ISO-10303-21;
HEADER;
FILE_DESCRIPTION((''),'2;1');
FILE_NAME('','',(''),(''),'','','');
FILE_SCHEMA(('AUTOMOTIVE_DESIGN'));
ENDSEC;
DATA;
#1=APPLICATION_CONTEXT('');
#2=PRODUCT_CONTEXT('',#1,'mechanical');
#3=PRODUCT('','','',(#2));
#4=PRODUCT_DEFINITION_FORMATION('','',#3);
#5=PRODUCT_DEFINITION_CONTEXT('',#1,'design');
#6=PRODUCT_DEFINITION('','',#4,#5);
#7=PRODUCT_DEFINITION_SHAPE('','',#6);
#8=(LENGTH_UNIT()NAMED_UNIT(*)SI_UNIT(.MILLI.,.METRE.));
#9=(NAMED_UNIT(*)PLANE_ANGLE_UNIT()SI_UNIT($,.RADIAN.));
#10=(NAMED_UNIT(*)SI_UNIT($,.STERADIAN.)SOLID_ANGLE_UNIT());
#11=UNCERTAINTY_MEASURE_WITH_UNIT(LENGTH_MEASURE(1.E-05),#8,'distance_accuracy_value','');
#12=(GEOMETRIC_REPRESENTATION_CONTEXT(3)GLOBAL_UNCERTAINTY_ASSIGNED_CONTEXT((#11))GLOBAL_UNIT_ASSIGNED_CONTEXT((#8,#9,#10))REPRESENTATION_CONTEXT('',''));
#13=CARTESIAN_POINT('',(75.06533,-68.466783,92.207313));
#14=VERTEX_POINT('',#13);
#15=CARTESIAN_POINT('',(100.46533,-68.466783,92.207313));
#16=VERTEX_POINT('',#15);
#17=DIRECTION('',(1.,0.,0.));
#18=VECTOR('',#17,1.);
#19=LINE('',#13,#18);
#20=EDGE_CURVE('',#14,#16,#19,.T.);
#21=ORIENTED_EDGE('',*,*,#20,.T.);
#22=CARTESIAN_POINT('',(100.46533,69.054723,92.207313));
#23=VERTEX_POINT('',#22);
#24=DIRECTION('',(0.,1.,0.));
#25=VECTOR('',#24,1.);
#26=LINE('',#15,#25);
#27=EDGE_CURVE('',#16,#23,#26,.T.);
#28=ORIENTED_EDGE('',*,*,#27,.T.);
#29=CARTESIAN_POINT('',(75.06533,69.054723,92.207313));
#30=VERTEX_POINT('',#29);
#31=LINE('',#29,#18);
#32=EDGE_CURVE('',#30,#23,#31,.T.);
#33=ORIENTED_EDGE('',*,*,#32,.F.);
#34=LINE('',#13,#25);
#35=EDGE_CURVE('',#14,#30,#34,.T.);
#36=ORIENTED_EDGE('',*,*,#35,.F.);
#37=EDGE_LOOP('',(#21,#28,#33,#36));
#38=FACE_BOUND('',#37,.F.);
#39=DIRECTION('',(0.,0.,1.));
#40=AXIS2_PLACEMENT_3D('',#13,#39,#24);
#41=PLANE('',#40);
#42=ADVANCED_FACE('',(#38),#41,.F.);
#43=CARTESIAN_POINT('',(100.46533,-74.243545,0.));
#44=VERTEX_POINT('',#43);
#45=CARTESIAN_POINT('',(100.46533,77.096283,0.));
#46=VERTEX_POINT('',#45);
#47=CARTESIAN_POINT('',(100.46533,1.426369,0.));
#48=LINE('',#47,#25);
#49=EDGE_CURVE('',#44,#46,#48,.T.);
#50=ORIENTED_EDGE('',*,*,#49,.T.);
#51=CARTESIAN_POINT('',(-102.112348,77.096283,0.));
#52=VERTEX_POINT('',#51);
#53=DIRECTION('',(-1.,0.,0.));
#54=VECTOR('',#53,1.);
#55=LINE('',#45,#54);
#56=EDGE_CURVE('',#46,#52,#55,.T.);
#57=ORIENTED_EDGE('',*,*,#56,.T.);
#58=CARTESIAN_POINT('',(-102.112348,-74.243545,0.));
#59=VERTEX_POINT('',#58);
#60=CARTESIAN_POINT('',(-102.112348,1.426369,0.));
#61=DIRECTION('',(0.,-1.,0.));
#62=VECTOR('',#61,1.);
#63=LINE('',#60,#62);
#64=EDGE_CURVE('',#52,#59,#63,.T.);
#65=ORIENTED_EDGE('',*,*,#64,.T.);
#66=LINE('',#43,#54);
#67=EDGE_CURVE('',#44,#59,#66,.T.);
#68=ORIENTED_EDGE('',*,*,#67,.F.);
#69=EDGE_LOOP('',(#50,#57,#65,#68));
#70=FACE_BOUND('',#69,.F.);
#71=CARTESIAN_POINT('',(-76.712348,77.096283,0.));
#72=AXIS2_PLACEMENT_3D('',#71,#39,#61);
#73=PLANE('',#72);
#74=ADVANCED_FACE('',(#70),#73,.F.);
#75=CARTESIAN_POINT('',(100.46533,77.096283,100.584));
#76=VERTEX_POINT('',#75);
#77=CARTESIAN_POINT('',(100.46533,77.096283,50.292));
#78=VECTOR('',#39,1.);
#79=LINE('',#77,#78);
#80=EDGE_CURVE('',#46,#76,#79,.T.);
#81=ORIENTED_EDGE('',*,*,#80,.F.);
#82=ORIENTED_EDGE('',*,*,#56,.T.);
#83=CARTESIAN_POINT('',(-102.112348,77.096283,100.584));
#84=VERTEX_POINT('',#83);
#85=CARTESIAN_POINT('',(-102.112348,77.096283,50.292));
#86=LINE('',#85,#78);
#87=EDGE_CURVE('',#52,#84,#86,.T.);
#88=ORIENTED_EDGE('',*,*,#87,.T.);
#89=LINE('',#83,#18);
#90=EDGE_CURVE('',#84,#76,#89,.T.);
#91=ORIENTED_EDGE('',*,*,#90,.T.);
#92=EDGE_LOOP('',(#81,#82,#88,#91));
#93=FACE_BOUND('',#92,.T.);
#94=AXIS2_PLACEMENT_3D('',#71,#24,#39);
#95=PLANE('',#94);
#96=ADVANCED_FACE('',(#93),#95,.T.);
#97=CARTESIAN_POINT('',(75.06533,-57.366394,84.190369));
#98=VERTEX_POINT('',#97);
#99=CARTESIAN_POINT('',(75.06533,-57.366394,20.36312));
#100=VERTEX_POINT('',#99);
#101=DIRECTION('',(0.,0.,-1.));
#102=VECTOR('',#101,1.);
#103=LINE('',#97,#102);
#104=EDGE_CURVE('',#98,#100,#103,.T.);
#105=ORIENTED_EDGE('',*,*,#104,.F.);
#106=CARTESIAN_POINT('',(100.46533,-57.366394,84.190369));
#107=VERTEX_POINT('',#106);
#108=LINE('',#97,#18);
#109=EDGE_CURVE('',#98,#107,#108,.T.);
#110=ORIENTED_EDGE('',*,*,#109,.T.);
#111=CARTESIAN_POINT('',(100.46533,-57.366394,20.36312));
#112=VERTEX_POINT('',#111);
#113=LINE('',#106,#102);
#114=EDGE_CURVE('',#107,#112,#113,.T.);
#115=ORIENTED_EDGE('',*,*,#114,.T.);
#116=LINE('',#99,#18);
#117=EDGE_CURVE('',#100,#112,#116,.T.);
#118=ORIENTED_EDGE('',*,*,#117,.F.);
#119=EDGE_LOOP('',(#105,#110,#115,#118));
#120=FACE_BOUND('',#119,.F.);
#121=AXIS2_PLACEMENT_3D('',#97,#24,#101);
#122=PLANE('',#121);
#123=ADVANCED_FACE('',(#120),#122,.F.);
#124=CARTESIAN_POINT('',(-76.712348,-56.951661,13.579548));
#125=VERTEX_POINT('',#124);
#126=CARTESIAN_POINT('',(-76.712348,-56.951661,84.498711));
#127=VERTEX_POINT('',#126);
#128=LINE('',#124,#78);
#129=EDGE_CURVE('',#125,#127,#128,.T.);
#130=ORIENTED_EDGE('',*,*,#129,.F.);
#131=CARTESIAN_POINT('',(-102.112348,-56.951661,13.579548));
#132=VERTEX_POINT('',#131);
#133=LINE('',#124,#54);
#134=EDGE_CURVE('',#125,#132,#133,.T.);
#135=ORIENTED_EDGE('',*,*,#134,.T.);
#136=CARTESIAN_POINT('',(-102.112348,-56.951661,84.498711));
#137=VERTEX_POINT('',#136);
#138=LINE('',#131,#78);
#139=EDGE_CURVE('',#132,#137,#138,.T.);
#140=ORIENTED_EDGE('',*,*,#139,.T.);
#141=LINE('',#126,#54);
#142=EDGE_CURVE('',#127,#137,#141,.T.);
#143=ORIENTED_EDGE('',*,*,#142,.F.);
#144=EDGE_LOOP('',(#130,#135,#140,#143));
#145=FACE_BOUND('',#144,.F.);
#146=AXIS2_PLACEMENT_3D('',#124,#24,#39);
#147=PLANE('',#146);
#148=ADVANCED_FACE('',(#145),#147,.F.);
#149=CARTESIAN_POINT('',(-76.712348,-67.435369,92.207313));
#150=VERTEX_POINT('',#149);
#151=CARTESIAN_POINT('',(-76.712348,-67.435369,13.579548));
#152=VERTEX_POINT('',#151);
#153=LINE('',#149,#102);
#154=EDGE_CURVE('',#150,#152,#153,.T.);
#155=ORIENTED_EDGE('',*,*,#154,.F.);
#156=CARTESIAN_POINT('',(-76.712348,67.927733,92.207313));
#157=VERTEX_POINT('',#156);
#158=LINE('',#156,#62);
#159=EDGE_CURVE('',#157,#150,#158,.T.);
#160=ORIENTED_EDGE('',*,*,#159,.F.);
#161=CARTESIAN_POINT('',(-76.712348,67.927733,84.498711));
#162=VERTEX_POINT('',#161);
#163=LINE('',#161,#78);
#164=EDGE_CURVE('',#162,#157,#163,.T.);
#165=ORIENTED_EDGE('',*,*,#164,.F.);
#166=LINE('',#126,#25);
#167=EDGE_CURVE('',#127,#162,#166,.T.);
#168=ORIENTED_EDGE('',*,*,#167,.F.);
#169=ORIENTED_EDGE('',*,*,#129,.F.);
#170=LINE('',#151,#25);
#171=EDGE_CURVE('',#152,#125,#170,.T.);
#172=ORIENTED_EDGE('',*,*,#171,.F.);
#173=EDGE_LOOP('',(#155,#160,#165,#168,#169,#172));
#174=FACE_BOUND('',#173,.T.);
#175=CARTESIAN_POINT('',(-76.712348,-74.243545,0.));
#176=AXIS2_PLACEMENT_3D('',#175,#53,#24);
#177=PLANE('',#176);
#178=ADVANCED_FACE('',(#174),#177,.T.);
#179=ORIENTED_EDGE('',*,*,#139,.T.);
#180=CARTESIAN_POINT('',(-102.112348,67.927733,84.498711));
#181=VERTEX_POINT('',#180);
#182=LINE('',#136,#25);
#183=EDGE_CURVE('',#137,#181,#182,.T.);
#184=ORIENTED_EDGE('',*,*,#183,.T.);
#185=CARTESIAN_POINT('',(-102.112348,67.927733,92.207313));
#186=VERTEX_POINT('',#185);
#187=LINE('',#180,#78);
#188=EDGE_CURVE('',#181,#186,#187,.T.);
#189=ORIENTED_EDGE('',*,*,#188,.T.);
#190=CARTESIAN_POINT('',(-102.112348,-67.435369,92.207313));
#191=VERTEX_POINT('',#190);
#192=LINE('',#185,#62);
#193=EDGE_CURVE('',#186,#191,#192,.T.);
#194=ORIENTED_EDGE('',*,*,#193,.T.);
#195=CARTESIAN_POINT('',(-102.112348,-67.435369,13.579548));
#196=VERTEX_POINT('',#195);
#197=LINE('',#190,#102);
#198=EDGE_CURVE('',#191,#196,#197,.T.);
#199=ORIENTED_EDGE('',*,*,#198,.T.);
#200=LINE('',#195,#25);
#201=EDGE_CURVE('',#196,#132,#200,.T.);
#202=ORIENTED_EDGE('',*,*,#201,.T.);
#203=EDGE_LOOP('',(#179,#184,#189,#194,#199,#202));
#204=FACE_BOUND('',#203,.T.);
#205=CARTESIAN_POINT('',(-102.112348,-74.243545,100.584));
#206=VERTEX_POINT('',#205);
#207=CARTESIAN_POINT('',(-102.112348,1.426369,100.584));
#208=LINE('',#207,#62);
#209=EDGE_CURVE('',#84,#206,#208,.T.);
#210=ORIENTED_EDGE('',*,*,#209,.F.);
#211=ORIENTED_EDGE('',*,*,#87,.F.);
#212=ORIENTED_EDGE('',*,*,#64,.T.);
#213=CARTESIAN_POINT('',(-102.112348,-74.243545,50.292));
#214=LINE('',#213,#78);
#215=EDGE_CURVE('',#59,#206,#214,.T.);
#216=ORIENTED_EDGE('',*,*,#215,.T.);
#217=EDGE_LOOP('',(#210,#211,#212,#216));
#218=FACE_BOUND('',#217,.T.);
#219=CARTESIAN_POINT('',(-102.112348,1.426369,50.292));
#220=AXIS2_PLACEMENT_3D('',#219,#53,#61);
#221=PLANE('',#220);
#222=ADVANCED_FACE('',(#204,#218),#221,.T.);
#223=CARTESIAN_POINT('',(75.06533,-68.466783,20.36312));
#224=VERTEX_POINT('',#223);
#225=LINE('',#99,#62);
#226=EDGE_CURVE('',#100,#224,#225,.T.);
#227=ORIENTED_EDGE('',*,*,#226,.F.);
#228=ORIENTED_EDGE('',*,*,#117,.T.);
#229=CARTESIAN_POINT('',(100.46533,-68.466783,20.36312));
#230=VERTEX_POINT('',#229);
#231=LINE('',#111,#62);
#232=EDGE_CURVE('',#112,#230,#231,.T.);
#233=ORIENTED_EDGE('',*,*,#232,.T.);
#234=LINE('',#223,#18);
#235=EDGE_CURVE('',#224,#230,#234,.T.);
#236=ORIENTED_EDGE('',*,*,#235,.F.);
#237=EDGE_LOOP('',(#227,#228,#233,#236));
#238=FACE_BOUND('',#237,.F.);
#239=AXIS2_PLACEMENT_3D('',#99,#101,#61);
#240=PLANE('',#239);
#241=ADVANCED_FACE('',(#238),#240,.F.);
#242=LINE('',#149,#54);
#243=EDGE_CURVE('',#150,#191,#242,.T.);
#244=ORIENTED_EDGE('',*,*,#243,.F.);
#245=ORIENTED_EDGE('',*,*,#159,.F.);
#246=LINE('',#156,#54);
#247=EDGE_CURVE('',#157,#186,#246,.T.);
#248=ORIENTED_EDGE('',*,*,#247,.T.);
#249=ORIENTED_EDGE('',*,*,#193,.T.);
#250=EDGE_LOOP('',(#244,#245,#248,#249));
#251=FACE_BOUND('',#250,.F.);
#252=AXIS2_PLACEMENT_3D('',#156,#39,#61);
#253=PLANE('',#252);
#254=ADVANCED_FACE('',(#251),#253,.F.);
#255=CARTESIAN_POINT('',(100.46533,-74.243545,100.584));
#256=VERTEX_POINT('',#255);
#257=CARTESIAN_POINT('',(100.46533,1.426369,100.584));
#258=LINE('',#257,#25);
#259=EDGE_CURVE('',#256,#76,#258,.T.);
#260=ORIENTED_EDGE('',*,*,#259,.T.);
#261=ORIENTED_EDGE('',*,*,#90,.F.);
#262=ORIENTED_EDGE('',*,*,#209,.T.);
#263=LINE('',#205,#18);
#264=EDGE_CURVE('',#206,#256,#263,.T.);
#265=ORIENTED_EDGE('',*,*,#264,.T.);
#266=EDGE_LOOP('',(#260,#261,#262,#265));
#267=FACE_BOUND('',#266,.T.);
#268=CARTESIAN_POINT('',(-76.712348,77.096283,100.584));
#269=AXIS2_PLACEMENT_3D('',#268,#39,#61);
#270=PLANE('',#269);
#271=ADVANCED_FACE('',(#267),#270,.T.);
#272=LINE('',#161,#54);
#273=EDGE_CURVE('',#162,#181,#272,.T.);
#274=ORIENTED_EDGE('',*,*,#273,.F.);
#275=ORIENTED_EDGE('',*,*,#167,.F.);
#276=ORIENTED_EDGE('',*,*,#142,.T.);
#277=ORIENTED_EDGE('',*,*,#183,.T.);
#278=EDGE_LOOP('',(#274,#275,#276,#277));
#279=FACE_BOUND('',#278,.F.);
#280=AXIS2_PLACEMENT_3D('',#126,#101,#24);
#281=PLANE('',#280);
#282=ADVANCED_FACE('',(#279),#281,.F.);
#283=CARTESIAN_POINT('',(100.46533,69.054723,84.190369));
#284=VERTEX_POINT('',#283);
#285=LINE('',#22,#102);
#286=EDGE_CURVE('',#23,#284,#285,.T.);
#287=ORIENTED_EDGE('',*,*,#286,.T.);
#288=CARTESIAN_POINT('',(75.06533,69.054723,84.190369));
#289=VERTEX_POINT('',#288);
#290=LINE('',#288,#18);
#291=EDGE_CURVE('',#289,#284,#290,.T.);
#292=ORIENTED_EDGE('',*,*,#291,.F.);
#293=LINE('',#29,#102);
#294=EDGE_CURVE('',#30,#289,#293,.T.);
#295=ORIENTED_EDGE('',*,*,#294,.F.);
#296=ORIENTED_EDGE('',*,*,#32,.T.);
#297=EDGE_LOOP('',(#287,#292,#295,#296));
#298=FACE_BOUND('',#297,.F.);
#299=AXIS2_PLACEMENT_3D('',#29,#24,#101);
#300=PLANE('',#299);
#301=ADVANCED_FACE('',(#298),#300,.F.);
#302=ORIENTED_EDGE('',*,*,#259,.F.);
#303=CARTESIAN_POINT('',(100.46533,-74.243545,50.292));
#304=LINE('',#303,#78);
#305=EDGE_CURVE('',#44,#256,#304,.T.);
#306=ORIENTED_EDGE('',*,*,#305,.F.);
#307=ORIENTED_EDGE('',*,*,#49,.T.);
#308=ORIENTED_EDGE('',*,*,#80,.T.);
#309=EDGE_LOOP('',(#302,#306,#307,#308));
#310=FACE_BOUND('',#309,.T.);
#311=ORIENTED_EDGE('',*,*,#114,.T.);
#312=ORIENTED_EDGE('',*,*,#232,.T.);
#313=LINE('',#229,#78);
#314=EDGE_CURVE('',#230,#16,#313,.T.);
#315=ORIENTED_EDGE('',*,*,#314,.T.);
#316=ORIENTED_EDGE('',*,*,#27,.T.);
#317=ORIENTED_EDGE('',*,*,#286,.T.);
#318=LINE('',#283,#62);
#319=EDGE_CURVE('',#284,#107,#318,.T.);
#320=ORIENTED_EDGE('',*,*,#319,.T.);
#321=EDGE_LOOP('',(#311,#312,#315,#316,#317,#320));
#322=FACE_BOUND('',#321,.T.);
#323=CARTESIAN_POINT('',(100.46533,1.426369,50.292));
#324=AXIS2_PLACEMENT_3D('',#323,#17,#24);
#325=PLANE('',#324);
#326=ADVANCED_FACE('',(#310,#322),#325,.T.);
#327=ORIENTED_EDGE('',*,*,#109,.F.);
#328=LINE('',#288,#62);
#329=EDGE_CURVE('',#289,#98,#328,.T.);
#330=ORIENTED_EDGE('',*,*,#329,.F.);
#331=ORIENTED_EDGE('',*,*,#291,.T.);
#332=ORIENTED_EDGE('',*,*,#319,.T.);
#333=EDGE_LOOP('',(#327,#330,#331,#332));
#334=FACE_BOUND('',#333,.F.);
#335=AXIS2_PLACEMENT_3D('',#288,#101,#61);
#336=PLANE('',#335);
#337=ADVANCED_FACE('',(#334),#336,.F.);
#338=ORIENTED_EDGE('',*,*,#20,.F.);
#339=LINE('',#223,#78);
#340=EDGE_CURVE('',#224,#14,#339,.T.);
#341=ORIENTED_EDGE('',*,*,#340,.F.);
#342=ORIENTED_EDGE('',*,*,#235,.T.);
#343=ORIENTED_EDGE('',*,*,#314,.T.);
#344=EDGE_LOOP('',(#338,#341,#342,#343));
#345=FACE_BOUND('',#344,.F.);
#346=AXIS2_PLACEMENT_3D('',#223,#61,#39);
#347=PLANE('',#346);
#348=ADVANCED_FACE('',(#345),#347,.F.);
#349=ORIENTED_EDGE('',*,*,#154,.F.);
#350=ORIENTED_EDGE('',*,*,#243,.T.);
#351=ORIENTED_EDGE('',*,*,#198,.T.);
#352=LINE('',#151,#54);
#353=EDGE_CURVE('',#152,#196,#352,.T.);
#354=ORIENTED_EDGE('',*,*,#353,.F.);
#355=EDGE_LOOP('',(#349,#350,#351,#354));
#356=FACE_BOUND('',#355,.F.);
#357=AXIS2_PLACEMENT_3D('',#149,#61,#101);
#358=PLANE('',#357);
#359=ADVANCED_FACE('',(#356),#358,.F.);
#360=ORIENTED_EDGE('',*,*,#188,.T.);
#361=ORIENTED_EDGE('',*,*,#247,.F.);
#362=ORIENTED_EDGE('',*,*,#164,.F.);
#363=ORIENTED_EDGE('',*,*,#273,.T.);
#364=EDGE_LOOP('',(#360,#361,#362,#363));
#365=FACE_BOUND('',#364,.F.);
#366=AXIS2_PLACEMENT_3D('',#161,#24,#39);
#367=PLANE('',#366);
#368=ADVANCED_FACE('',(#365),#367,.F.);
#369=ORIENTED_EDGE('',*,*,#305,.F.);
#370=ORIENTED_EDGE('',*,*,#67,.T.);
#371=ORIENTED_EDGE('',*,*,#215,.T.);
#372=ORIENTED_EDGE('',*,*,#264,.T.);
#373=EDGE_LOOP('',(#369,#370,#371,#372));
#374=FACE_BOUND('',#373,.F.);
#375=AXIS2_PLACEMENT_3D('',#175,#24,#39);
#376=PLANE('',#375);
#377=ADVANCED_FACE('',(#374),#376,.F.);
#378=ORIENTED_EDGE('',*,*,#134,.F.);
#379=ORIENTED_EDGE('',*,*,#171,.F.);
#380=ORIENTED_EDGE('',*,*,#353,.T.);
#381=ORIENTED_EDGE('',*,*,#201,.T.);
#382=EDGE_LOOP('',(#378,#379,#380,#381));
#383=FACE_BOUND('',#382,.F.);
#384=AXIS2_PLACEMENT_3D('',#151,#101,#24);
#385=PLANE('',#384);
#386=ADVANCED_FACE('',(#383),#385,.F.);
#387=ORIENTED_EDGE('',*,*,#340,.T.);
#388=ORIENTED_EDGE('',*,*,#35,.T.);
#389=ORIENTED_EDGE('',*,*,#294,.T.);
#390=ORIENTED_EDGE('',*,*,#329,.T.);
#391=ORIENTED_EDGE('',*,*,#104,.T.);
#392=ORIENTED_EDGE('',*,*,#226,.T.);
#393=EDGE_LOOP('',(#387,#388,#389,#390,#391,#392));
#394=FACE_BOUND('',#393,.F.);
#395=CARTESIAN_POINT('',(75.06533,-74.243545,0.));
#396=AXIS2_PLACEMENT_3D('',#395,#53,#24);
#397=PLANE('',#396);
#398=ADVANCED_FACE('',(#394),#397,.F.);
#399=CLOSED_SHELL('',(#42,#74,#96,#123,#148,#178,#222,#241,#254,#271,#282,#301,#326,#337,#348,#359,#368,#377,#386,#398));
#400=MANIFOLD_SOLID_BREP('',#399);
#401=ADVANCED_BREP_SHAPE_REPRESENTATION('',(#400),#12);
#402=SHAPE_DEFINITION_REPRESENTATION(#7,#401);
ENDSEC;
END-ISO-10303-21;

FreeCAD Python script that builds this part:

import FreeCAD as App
import Part
import Sketcher
from FreeCAD import Vector
Q = App.Units.Quantity

doc = App.newDocument("Part")
params = doc.addObject("Spreadsheet::Sheet", "Params")
for row, (alias, value) in enumerate([
    ("pad1_length", "3.96 in"),
    ("sketch2_height", "3.96 in"),
    ("pad2_length", "1 in"),
    ("sketch3_height", "3.96 in"),
    ("pad3_length", "1 in"),
], start=1):
    params.set(f"A{row}", alias)
    params.set(f"B{row}", "=" + value)
    params.setAlias(f"B{row}", alias)

body = doc.addObject("PartDesign::Body", "Body")

# Sketch on XY plane
sketch1 = body.newObject("Sketcher::SketchObject", "Sketch")
sketch1.AttachmentSupport = (doc.getObject("XY_Plane"), [""])
sketch1.MapMode = "FlatFace"
sketch1.addGeometry([
    Part.LineSegment(Vector(-77, 77, 0), Vector(-77, -74, 0)),
    Part.LineSegment(Vector(-77, -74, 0), Vector(75, -74, 0)),
    Part.LineSegment(Vector(75, -74, 0), Vector(75, 77, 0)),
    Part.LineSegment(Vector(75, 77, 0), Vector(-77, 77, 0)),
], False)
sketch1.addConstraint([
    Sketcher.Constraint("Coincident", 0, 2, 1, 1),
    Sketcher.Constraint("Coincident", 1, 2, 2, 1),
    Sketcher.Constraint("Coincident", 2, 2, 3, 1),
    Sketcher.Constraint("Coincident", 3, 2, 0, 1),
    Sketcher.Constraint("Vertical", 0),
    Sketcher.Constraint("Horizontal", 1),
    Sketcher.Constraint("Vertical", 2),
    Sketcher.Constraint("Horizontal", 3),
    Sketcher.Constraint("DistanceX", 1, 1, 1, 2, Q("151.777678 mm")),
    Sketcher.Constraint("DistanceY", 0, 2, 0, 1, Q("151.339829 mm")),
    Sketcher.Constraint("DistanceX", 0, 2, -1, 1, Q("76.712348 mm")),
    Sketcher.Constraint("DistanceY", 0, 2, -1, 1, Q("74.243545 mm")),
])
pad1 = body.newObject("PartDesign::Pad", "Pad")
pad1.Profile = sketch1
pad1.setExpression("Length", "Params.pad1_length")

# Sketch on YZ plane
sketch2 = body.newObject("Sketcher::SketchObject", "Sketch001")
sketch2.AttachmentSupport = (doc.getObject("YZ_Plane"), [""])
sketch2.MapMode = "FlatFace"
sketch2.AttachmentOffset = App.Placement(Vector(0, 0, 75.06533), App.Rotation())
sketch2.addGeometry([
    Part.LineSegment(Vector(-74, 101, 0), Vector(-74, 0, 0)),  # 0
    Part.LineSegment(Vector(-74, 0, 0), Vector(77, 0, 0)),  # 1
    Part.LineSegment(Vector(77, 0, 0), Vector(77, 101, 0)),  # 2
    Part.LineSegment(Vector(77, 101, 0), Vector(-74, 101, 0)),  # 3
    Part.LineSegment(Vector(-57, 20, 0), Vector(-68, 20, 0)),  # 4
    Part.LineSegment(Vector(-68, 20, 0), Vector(-68, 92, 0)),  # 5
    Part.LineSegment(Vector(-68, 92, 0), Vector(69, 92, 0)),  # 6
    Part.LineSegment(Vector(69, 92, 0), Vector(69, 84, 0)),  # 7
    Part.LineSegment(Vector(69, 84, 0), Vector(-57, 84, 0)),  # 8
    Part.LineSegment(Vector(-57, 84, 0), Vector(-57, 20, 0)),  # 9
], False)
sketch2.addConstraint([
    Sketcher.Constraint("Coincident", 0, 2, 1, 1),
    Sketcher.Constraint("Coincident", 1, 2, 2, 1),
    Sketcher.Constraint("Coincident", 2, 2, 3, 1),
    Sketcher.Constraint("Coincident", 3, 2, 0, 1),
    Sketcher.Constraint("Coincident", 4, 2, 5, 1),
    Sketcher.Constraint("Coincident", 5, 2, 6, 1),
    Sketcher.Constraint("Coincident", 6, 2, 7, 1),
    Sketcher.Constraint("Coincident", 7, 2, 8, 1),
    Sketcher.Constraint("Coincident", 8, 2, 9, 1),
    Sketcher.Constraint("Coincident", 9, 2, 4, 1),
    Sketcher.Constraint("Vertical", 0),
    Sketcher.Constraint("Horizontal", 1),
    Sketcher.Constraint("Vertical", 2),
    Sketcher.Constraint("Horizontal", 3),
    Sketcher.Constraint("Horizontal", 4),
    Sketcher.Constraint("Vertical", 5),
    Sketcher.Constraint("Horizontal", 6),
    Sketcher.Constraint("Vertical", 7),
    Sketcher.Constraint("Horizontal", 8),
    Sketcher.Constraint("Vertical", 9),
    Sketcher.Constraint("PointOnObject", 0, 2, -1),
    Sketcher.Constraint("DistanceY", 0, 2, 0, 1, Q("3.96 in")),
    Sketcher.Constraint("DistanceX", 1, 1, 1, 2, Q("151.339829 mm")),
    Sketcher.Constraint("DistanceX", 4, 2, 4, 1, Q("11.100389 mm")),
    Sketcher.Constraint("DistanceY", 9, 2, 9, 1, Q("63.827249 mm")),
    Sketcher.Constraint("DistanceX", 6, 1, 6, 2, Q("137.521506 mm")),
    Sketcher.Constraint("DistanceY", 5, 1, 5, 2, Q("71.844193 mm")),
    Sketcher.Constraint("DistanceY", -1, 1, 4, 2, Q("20.36312 mm")),
    Sketcher.Constraint("DistanceX", 6, 2, 2, 2, Q("8.041561 mm")),
    Sketcher.Constraint("DistanceX", 0, 2, -1, 1, Q("74.243545 mm")),
])
sketch2.setExpression("Constraints[21]", "Params.sketch2_height")
pad2 = body.newObject("PartDesign::Pad", "Pad001")
pad2.Profile = sketch2
pad2.setExpression("Length", "Params.pad2_length")

# Sketch on YZ plane
sketch3 = body.newObject("Sketcher::SketchObject", "Sketch002")
sketch3.AttachmentSupport = (doc.getObject("YZ_Plane"), [""])
sketch3.MapMode = "FlatFace"
sketch3.AttachmentOffset = App.Placement(Vector(0, 0, -76.712348), App.Rotation())
sketch3.addGeometry([
    Part.LineSegment(Vector(77, 101, 0), Vector(77, 0, 0)),  # 0
    Part.LineSegment(Vector(77, 0, 0), Vector(-74, 0, 0)),  # 1
    Part.LineSegment(Vector(-74, 0, 0), Vector(-74, 101, 0)),  # 2
    Part.LineSegment(Vector(-74, 101, 0), Vector(77, 101, 0)),  # 3
    Part.LineSegment(Vector(68, 92, 0), Vector(-67, 92, 0)),  # 4
    Part.LineSegment(Vector(-67, 92, 0), Vector(-67, 14, 0)),  # 5
    Part.LineSegment(Vector(-67, 14, 0), Vector(-57, 14, 0)),  # 6
    Part.LineSegment(Vector(-57, 14, 0), Vector(-57, 84, 0)),  # 7
    Part.LineSegment(Vector(-57, 84, 0), Vector(68, 84, 0)),  # 8
    Part.LineSegment(Vector(68, 84, 0), Vector(68, 92, 0)),  # 9
], False)
sketch3.addConstraint([
    Sketcher.Constraint("Coincident", 0, 2, 1, 1),
    Sketcher.Constraint("Coincident", 1, 2, 2, 1),
    Sketcher.Constraint("Coincident", 2, 2, 3, 1),
    Sketcher.Constraint("Coincident", 3, 2, 0, 1),
    Sketcher.Constraint("Coincident", 4, 2, 5, 1),
    Sketcher.Constraint("Coincident", 5, 2, 6, 1),
    Sketcher.Constraint("Coincident", 6, 2, 7, 1),
    Sketcher.Constraint("Coincident", 7, 2, 8, 1),
    Sketcher.Constraint("Coincident", 8, 2, 9, 1),
    Sketcher.Constraint("Coincident", 9, 2, 4, 1),
    Sketcher.Constraint("Vertical", 0),
    Sketcher.Constraint("Horizontal", 1),
    Sketcher.Constraint("Vertical", 2),
    Sketcher.Constraint("Horizontal", 3),
    Sketcher.Constraint("Horizontal", 4),
    Sketcher.Constraint("Vertical", 5),
    Sketcher.Constraint("Horizontal", 6),
    Sketcher.Constraint("Vertical", 7),
    Sketcher.Constraint("Horizontal", 8),
    Sketcher.Constraint("Vertical", 9),
    Sketcher.Constraint("PointOnObject", 0, 2, -1),
    Sketcher.Constraint("DistanceY", 0, 2, 0, 1, Q("3.96 in")),
    Sketcher.Constraint("DistanceX", 4, 2, 4, 1, Q("135.363102 mm")),
    Sketcher.Constraint("DistanceY", 9, 1, 9, 2, Q("7.708602 mm")),
    Sketcher.Constraint("DistanceX", 1, 2, 1, 1, Q("151.339829 mm")),
    Sketcher.Constraint("DistanceX", 6, 1, 6, 2, Q("10.483708 mm")),
    Sketcher.Constraint("DistanceY", 5, 2, 5, 1, Q("78.627765 mm")),
    Sketcher.Constraint("DistanceX", 4, 2, -1, 1, Q("67.435369 mm")),
    Sketcher.Constraint("DistanceY", -1, 1, 5, 2, Q("13.579548 mm")),
    Sketcher.Constraint("DistanceX", 8, 2, 3, 2, Q("9.16855 mm")),
])
sketch3.setExpression("Constraints[21]", "Params.sketch3_height")
pad3 = body.newObject("PartDesign::Pad", "Pad002")
pad3.Profile = sketch3
pad3.setExpression("Length", "Params.pad3_length")
pad3.Reversed = True

doc.recompute()
